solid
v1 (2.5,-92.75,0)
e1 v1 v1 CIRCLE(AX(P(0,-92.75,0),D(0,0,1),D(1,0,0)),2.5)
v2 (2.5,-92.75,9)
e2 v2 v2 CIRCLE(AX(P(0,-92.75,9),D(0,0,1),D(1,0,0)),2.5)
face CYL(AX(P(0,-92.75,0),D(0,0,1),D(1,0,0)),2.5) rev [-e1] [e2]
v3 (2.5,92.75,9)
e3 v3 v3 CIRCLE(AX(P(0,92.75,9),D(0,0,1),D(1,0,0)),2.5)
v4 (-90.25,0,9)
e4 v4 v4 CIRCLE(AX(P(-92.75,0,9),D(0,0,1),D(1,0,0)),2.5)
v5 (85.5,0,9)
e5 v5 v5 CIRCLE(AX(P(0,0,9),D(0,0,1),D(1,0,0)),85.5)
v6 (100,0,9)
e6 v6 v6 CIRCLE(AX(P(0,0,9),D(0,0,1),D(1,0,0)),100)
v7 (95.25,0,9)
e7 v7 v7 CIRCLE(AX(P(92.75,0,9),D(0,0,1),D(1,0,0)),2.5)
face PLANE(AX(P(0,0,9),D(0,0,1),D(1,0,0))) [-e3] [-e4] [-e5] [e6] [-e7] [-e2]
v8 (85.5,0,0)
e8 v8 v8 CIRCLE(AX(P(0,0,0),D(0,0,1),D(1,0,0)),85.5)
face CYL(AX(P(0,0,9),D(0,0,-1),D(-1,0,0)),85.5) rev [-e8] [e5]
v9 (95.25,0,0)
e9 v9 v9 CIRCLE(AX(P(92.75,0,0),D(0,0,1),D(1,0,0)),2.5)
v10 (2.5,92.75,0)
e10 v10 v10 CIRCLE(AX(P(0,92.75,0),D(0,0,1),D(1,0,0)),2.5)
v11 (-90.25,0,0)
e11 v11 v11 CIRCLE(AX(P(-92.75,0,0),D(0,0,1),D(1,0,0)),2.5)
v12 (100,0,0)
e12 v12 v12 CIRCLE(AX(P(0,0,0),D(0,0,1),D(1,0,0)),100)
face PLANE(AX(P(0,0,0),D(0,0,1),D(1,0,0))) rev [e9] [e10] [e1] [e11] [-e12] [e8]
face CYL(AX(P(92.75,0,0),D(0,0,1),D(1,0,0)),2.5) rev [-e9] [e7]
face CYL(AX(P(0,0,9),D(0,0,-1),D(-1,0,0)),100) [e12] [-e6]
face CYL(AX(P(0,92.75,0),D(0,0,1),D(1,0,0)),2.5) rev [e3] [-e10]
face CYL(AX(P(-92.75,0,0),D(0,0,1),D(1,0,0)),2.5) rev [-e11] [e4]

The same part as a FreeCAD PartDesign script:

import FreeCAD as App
import Part
import Sketcher
from FreeCAD import Vector
Q = App.Units.Quantity

doc = App.newDocument("Part")
body = doc.addObject("PartDesign::Body", "Body")

# Sketch on XY plane
sketch1 = body.newObject("Sketcher::SketchObject", "Sketch")
sketch1.AttachmentSupport = (doc.getObject("XY_Plane"), [""])
sketch1.MapMode = "FlatFace"
sketch1.addGeometry([
    Part.Circle(Vector(0, 0, 0), Vector(0, 0, 1), 100),
    Part.Circle(Vector(0, 0, 0), Vector(0, 0, 1), 85.5),
], False)
sketch1.addConstraint([
    Sketcher.Constraint("Coincident", 0, 3, -1, 1),
    Sketcher.Constraint("Coincident", 1, 3, -1, 1),
    Sketcher.Constraint("Diameter", 0, Q("200 mm")),
    Sketcher.Constraint("Diameter", 1, Q("171 mm")),
])
pad1 = body.newObject("PartDesign::Pad", "Pad")
pad1.Profile = sketch1
pad1.Length = 9

# Sketch on XY plane
sketch2 = body.newObject("Sketcher::SketchObject", "Sketch001")
sketch2.AttachmentSupport = (doc.getObject("XY_Plane"), [""])
sketch2.MapMode = "FlatFace"
sketch2.AttachmentOffset = App.Placement(Vector(0, 0, 9), App.Rotation())
sketch2.addGeometry([
    Part.Circle(Vector(0, 92.75, 0), Vector(0, 0, 1), 2.5),
    Part.Circle(Vector(92.75, 0, 0), Vector(0, 0, 1), 2.5),
    Part.Circle(Vector(0, -92.75, 0), Vector(0, 0, 1), 2.5),
    Part.Circle(Vector(-92.75, 0, 0), Vector(0, 0, 1), 2.5),
], False)
sketch2.addConstraint([
    Sketcher.Constraint("Equal", 0, 1),
    Sketcher.Constraint("Equal", 1, 2),
    Sketcher.Constraint("Equal", 2, 3),
    Sketcher.Constraint("Symmetric", 0, 3, 2, 3, -1, 1),
    Sketcher.Constraint("Symmetric", 1, 3, 3, 3, -1, 1),
    Sketcher.Constraint("PointOnObject", 0, 3, -2),
    Sketcher.Constraint("PointOnObject", 1, 3, -1),
    Sketcher.Constraint("Diameter", 0, Q("5 mm")),
    Sketcher.Constraint("DistanceY", 2, 3, 0, 3, Q("185.5 mm")),
    Sketcher.Constraint("DistanceX", 3, 3, 1, 3, Q("185.5 mm")),
])
pocket1 = body.newObject("PartDesign::Pocket", "Pocket")
pocket1.Profile = sketch2
pocket1.Type = "ThroughAll"

doc.recompute()
